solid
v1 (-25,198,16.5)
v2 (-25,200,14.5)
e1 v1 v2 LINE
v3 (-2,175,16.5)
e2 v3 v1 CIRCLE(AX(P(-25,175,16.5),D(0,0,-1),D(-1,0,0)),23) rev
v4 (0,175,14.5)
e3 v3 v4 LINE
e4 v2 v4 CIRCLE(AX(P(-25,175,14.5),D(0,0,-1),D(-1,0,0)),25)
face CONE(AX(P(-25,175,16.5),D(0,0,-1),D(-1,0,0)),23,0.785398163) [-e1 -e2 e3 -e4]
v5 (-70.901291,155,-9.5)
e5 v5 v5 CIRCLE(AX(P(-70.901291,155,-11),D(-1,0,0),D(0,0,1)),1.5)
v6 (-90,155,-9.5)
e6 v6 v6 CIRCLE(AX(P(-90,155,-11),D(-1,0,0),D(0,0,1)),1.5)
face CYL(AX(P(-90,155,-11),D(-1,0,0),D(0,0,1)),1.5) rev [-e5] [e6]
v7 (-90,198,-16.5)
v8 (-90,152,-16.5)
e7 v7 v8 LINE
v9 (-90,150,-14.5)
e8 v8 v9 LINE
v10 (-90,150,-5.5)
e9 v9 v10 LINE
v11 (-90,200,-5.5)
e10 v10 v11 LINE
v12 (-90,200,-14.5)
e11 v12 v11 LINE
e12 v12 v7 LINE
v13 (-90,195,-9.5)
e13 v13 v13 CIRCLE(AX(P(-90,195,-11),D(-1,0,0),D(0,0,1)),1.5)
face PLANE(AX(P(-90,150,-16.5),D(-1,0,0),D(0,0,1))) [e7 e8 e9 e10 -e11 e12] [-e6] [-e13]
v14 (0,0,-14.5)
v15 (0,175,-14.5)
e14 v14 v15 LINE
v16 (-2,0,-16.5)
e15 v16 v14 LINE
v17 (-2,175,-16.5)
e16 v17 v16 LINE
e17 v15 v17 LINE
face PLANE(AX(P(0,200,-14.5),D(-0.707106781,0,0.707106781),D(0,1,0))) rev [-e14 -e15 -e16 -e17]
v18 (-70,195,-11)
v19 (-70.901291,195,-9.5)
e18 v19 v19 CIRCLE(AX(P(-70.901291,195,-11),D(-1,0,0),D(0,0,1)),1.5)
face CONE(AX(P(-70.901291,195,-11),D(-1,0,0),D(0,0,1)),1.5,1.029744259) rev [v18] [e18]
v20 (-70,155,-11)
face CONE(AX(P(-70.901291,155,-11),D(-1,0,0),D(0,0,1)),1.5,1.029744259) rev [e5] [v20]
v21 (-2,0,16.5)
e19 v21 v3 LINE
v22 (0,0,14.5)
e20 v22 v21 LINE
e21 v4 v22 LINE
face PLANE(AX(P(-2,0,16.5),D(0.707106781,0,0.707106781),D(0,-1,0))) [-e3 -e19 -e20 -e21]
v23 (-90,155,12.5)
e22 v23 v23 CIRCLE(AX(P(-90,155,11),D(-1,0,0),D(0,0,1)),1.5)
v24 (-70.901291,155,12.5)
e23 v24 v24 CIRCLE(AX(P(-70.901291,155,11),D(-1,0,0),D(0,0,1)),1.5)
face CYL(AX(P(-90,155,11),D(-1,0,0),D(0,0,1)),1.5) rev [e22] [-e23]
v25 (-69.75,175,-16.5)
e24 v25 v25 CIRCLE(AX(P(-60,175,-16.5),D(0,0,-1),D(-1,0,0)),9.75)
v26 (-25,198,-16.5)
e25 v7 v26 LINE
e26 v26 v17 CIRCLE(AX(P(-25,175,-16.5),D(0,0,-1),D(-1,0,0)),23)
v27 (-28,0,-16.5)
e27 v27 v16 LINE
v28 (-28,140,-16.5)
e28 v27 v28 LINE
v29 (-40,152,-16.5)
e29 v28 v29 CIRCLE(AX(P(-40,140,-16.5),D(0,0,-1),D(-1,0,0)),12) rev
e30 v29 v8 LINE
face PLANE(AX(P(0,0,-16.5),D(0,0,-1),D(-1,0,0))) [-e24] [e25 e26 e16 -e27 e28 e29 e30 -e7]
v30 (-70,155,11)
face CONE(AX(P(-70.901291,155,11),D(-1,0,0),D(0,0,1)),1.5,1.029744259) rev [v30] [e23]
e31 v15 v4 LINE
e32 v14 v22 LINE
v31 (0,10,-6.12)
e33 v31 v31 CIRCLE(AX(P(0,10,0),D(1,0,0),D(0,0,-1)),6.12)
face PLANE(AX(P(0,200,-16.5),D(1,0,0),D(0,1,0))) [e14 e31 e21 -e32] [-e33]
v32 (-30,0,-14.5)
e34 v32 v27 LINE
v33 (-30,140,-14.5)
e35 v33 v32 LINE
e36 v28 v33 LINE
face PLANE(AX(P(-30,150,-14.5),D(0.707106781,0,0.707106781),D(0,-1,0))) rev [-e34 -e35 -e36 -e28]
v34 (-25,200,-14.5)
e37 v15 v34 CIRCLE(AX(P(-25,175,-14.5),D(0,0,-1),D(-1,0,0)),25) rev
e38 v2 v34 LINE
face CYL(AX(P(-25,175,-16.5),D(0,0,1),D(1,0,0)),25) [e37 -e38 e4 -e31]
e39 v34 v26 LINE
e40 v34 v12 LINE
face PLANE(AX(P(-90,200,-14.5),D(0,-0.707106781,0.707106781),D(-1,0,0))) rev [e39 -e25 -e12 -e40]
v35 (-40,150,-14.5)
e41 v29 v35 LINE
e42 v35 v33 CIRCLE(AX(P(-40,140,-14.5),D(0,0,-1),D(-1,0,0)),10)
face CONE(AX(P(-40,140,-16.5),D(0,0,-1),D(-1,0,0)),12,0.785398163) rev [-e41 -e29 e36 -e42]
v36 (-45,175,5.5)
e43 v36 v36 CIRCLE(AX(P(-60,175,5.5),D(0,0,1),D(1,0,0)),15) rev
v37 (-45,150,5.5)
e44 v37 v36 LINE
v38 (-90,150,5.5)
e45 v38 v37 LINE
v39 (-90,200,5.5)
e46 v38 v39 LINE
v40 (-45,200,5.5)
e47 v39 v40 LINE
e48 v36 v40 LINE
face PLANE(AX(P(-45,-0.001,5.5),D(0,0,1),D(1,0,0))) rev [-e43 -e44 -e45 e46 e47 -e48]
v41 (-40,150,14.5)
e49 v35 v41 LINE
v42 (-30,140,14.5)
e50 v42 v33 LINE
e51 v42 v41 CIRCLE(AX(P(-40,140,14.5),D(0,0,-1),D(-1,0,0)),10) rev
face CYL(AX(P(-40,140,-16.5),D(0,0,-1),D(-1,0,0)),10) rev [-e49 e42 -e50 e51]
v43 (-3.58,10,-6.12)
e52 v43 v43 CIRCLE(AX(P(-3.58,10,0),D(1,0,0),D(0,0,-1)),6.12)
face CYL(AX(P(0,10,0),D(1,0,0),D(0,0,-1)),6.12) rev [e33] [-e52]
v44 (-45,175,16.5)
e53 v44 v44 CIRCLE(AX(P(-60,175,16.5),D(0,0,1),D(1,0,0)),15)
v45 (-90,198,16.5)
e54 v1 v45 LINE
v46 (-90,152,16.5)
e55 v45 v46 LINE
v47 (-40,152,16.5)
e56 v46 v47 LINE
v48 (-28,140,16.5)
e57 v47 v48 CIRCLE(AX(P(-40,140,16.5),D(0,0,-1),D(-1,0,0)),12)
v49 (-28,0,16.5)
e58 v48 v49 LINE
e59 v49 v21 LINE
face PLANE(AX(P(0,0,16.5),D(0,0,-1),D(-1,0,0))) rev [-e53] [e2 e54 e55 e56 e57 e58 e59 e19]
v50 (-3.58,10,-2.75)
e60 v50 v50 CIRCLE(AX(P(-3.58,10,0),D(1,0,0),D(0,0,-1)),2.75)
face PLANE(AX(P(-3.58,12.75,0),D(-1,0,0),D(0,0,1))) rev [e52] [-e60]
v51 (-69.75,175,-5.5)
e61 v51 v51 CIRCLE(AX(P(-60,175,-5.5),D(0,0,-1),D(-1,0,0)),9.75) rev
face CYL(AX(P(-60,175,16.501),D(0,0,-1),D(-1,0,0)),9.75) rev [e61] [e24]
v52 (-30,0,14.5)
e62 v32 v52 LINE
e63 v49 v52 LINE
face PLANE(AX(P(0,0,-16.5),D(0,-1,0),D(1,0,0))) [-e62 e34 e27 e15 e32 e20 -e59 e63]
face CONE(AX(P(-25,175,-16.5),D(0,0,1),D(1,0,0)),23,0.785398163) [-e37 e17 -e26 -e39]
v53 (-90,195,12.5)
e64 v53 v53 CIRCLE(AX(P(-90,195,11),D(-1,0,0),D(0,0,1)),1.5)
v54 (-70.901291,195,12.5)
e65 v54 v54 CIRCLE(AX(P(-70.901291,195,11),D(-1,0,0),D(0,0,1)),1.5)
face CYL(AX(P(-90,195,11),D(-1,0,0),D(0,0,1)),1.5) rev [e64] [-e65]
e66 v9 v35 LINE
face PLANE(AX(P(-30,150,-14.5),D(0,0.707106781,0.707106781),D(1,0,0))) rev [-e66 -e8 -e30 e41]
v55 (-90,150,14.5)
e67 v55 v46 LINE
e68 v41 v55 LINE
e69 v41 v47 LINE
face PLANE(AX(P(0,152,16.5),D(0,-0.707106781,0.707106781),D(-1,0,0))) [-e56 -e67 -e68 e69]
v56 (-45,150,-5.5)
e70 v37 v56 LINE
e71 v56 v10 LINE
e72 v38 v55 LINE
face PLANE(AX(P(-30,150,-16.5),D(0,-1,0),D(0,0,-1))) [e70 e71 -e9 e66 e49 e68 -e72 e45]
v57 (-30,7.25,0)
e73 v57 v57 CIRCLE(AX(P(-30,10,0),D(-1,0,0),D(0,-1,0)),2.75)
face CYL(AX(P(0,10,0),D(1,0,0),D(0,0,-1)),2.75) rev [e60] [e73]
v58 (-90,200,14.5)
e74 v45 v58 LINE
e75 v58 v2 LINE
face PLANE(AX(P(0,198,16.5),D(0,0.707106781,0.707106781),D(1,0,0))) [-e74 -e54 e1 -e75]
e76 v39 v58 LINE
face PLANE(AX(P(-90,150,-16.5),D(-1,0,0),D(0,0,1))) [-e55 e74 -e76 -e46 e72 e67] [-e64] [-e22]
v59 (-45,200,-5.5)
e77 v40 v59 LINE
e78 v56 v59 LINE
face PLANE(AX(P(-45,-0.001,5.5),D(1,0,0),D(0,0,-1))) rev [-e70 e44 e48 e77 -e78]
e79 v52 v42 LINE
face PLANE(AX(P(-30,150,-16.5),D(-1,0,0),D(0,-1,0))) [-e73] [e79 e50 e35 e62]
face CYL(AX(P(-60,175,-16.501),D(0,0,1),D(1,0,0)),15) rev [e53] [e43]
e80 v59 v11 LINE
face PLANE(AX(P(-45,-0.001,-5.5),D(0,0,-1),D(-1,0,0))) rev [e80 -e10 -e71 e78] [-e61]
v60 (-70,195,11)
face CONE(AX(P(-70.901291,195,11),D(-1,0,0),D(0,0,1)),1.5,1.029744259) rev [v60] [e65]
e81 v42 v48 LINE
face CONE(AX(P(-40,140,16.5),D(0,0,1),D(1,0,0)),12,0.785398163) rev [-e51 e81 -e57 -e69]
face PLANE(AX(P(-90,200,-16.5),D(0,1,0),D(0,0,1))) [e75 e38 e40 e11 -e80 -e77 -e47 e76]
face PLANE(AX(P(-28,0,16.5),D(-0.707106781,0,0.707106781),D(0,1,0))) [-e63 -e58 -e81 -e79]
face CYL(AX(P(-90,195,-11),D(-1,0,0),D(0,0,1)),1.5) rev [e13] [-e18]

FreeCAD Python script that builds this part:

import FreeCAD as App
import Part
import Sketcher

V = App.Vector
Q = App.Units.Quantity


def edges_at(feature, points):
    """Names of the edges that pass closest to the given points."""
    edges = feature.Shape.Edges
    near = lambda p: min(range(len(edges)), key=lambda i: edges[i].distToShape(Part.Vertex(*p))[0])
    return sorted({f"Edge{near(p) + 1}" for p in points})


def add_polygon(sketch, points):
    """Adds a closed chain of lines whose ends are joined by coincident constraints."""
    first, n = sketch.GeometryCount, len(points)
    for a, b in zip(points, points[1:] + points[:1]):
        sketch.addGeometry(Part.LineSegment(App.Vector(*a, 0), App.Vector(*b, 0)), False)
    for i in range(n):
        sketch.addConstraint(Sketcher.Constraint("Coincident", first + i, 2, first + (i + 1) % n, 1))

doc = App.newDocument("Part")
params = doc.addObject("Spreadsheet::Sheet", "Params")
for row, (alias, value) in enumerate([
    ("sketch1_width", "30 mm"),
    ("sketch1_width2", "90 mm"),
    ("sketch1_height", "200 mm"),
    ("sketch1_height2", "50 mm"),
    ("pad1_length", "33 mm"),
    ("sketch2_width", "45 mm"),
    ("sketch2_height", "11 mm"),
    ("fillet_radius", "25 mm"),
    ("fillet2_radius", "10 mm"),
    ("sketch3_diameter", "30 mm"),
    ("sketch4_diameter", "19.5 mm"),
    ("sketch5_diameter", "3 mm"),
    ("hole_diameter", "3 mm"),
    ("hole_depth", "19.098709 mm"),
    ("chamfer_size", "2 mm"),
    ("sketch6_diameter", "5.5 mm"),
    ("hole2_diameter", "5.5 mm"),
    ("hole2_cbore_diameter", "12.24 mm"),
    ("hole2_cbore_depth", "3.58 mm"),
], start=1):
    params.set(f"A{row}", alias)
    params.set(f"B{row}", "=" + value)
    params.setAlias(f"B{row}", alias)

body = doc.addObject("PartDesign::Body", "Body")

sketch1 = body.newObject("Sketcher::SketchObject", "Sketch")
sketch1.AttachmentSupport = (doc.getObject("XY_Plane"), [""])
sketch1.MapMode = "FlatFace"
add_polygon(sketch1, [(-30, 0), (0, 0), (0, 200), (-90, 200), (-90, 150), (-30, 150)])
sketch1.addConstraint([
    Sketcher.Constraint("Horizontal", 0),
    Sketcher.Constraint("Vertical", 1),
    Sketcher.Constraint("Horizontal", 2),
    Sketcher.Constraint("Vertical", 3),
    Sketcher.Constraint("Horizontal", 4),
    Sketcher.Constraint("Vertical", 5),
    Sketcher.Constraint("Coincident", 0, 2, -1, 1),
    Sketcher.Constraint("DistanceX", 0, 1, 0, 2, Q("30 mm")),
    Sketcher.Constraint("DistanceX", 2, 2, 2, 1, Q("90 mm")),
    Sketcher.Constraint("DistanceY", 1, 1, 1, 2, Q("200 mm")),
    Sketcher.Constraint("DistanceY", 3, 2, 3, 1, Q("50 mm")),
])
sketch1.setExpression("Constraints[13]", "Params.sketch1_width")
sketch1.setExpression("Constraints[14]", "Params.sketch1_width2")
sketch1.setExpression("Constraints[15]", "Params.sketch1_height")
sketch1.setExpression("Constraints[16]", "Params.sketch1_height2")
pad1 = body.newObject("PartDesign::Pad", "Pad")
pad1.Profile = sketch1
pad1.setExpression("Length", "Params.pad1_length")
pad1.Midplane = True

sketch2 = body.newObject("Sketcher::SketchObject", "Sketch001")
sketch2.AttachmentSupport = (doc.getObject("XZ_Plane"), [""])
sketch2.MapMode = "FlatFace"
sketch2.AttachmentOffset = App.Placement(V(0, 0, -200), App.Rotation())
add_polygon(sketch2, [(-90, -5.5), (-90, 5.5), (-45, 5.5), (-45, -5.5)])
sketch2.addConstraint([
    Sketcher.Constraint("Vertical", 0),
    Sketcher.Constraint("Horizontal", 1),
    Sketcher.Constraint("Vertical", 2),
    Sketcher.Constraint("Horizontal", 3),
    Sketcher.Constraint("DistanceX", 1, 1, 1, 2, Q("45 mm")),
    Sketcher.Constraint("DistanceY", 0, 1, 0, 2, Q("11 mm")),
    Sketcher.Constraint("DistanceX", 0, 2, -1, 1, Q("90 mm")),
    Sketcher.Constraint("DistanceY", -1, 1, 0, 2, Q("5.5 mm")),
])
sketch2.setExpression("Constraints[8]", "Params.sketch2_width")
sketch2.setExpression("Constraints[9]", "Params.sketch2_height")
pocket1 = body.newObject("PartDesign::Pocket", "Pocket")
pocket1.Profile = sketch2
pocket1.Type = "UpToFirst"
pocket1.Reversed = True
doc.recompute()

fillet = body.newObject("PartDesign::Fillet", "Fillet")
fillet.Base = (pocket1, edges_at(pocket1, [(0, 200, 0)]))
fillet.setExpression("Radius", "Params.fillet_radius")
doc.recompute()

fillet2 = body.newObject("PartDesign::Fillet", "Fillet001")
fillet2.Base = (fillet, edges_at(fillet, [(-30, 150, 0)]))
fillet2.setExpression("Radius", "Params.fillet2_radius")

sketch3 = body.newObject("Sketcher::SketchObject", "Sketch002")
sketch3.AttachmentSupport = (doc.getObject("XY_Plane"), [""])
sketch3.MapMode = "FlatFace"
sketch3.AttachmentOffset = App.Placement(V(0, 0, 16.5), App.Rotation())
sketch3.addGeometry(Part.Circle(V(-60, 175, 0), V(0, 0, 1), 15), False)
sketch3.addConstraint([
    Sketcher.Constraint("Diameter", 0, Q("30 mm")),
    Sketcher.Constraint("DistanceX", 0, 3, -1, 1, Q("60 mm")),
    Sketcher.Constraint("DistanceY", -1, 1, 0, 3, Q("175 mm")),
])
sketch3.setExpression("Constraints[0]", "Params.sketch3_diameter")
pocket2 = body.newObject("PartDesign::Pocket", "Pocket001")
pocket2.Profile = sketch3
pocket2.Type = "UpToFirst"

sketch4 = body.newObject("Sketcher::SketchObject", "Sketch003")
sketch4.AttachmentSupport = (doc.getObject("XY_Plane"), [""])
sketch4.MapMode = "FlatFace"
sketch4.AttachmentOffset = App.Placement(V(0, 0, -16.5), App.Rotation())
sketch4.addGeometry(Part.Circle(V(-60, 175, 0), V(0, 0, 1), 9.75), False)
sketch4.addConstraint([
    Sketcher.Constraint("Diameter", 0, Q("19.5 mm")),
    Sketcher.Constraint("DistanceX", 0, 3, -1, 1, Q("60 mm")),
    Sketcher.Constraint("DistanceY", -1, 1, 0, 3, Q("175 mm")),
])
sketch4.setExpression("Constraints[0]", "Params.sketch4_diameter")
pocket3 = body.newObject("PartDesign::Pocket", "Pocket002")
pocket3.Profile = sketch4
pocket3.Type = "UpToFirst"
pocket3.Reversed = True

sketch5 = body.newObject("Sketcher::SketchObject", "Sketch004")
sketch5.AttachmentSupport = (doc.getObject("YZ_Plane"), [""])
sketch5.MapMode = "FlatFace"
sketch5.AttachmentOffset = App.Placement(V(0, 0, -90), App.Rotation())
sketch5.addGeometry([
    Part.Circle(V(195, -11, 0), V(0, 0, 1), 1.5),
    Part.Circle(V(155, -11, 0), V(0, 0, 1), 1.5),
    Part.Circle(V(195, 11, 0), V(0, 0, 1), 1.5),
    Part.Circle(V(155, 11, 0), V(0, 0, 1), 1.5),
], False)
sketch5.addConstraint([
    Sketcher.Constraint("Equal", 0, 1),
    Sketcher.Constraint("Equal", 1, 2),
    Sketcher.Constraint("Equal", 2, 3),
    Sketcher.Constraint("Symmetric", 0, 3, 2, 3, -1),
    Sketcher.Constraint("Symmetric", 1, 3, 3, 3, -1),
    Sketcher.Constraint("Horizontal", 0, 3, 1, 3),
    Sketcher.Constraint("Diameter", 0, Q("3 mm")),
    Sketcher.Constraint("DistanceX", -1, 1, 0, 3, Q("195 mm")),
    Sketcher.Constraint("DistanceY", 0, 3, -1, 1, Q("11 mm")),
    Sketcher.Constraint("DistanceX", -1, 1, 1, 3, Q("155 mm")),
])
sketch5.setExpression("Constraints[6]", "Params.sketch5_diameter")
doc.recompute()
hole = body.newObject("PartDesign::Hole", "Hole")
hole.Profile = sketch5
hole.ThreadType = "None"
hole.setExpression("Diameter", "Params.hole_diameter")
hole.DepthType = "Dimension"
hole.setExpression("Depth", "Params.hole_depth")
hole.DrillPoint = "Angled"
hole.DrillPointAngle = 118
hole.Reversed = True
doc.recompute()

chamfer = body.newObject("PartDesign::Chamfer", "Chamfer")
chamfer.Base = (hole, edges_at(hole, [
    (-65, 150, -16.5),
    (-57.5, 200, 16.5),
    (-7.322, 192.678, 16.5),
    (-57.5, 200, -16.5),
    (-7.322, 192.678, -16.5),
    (-30, 70, 16.5),
    (-30, 70, -16.5),
    (-32.929, 147.071, 16.5),
    (-32.929, 147.071, -16.5),
    (0, 87.5, -16.5),
    (-65, 150, 16.5),
    (0, 87.5, 16.5),
]))
chamfer.setExpression("Size", "Params.chamfer_size")

sketch6 = body.newObject("Sketcher::SketchObject", "Sketch005")
sketch6.AttachmentSupport = (doc.getObject("YZ_Plane"), [""])
sketch6.MapMode = "FlatFace"
sketch6.addGeometry(Part.Circle(V(10, 0, 0), V(0, 0, 1), 2.75), False)
sketch6.addConstraint([
    Sketcher.Constraint("PointOnObject", 0, 3, -1),
    Sketcher.Constraint("Diameter", 0, Q("5.5 mm")),
    Sketcher.Constraint("DistanceX", -1, 1, 0, 3, Q("10 mm")),
])
sketch6.setExpression("Constraints[1]", "Params.sketch6_diameter")
doc.recompute()
hole2 = body.newObject("PartDesign::Hole", "Hole001")
hole2.Profile = sketch6
hole2.ThreadType = "None"
hole2.setExpression("Diameter", "Params.hole2_diameter")
hole2.DepthType = "ThroughAll"
hole2.HoleCutType = "Counterbore"
hole2.setExpression("HoleCutDiameter", "Params.hole2_cbore_diameter")
hole2.setExpression("HoleCutDepth", "Params.hole2_cbore_depth")

doc.recompute()
